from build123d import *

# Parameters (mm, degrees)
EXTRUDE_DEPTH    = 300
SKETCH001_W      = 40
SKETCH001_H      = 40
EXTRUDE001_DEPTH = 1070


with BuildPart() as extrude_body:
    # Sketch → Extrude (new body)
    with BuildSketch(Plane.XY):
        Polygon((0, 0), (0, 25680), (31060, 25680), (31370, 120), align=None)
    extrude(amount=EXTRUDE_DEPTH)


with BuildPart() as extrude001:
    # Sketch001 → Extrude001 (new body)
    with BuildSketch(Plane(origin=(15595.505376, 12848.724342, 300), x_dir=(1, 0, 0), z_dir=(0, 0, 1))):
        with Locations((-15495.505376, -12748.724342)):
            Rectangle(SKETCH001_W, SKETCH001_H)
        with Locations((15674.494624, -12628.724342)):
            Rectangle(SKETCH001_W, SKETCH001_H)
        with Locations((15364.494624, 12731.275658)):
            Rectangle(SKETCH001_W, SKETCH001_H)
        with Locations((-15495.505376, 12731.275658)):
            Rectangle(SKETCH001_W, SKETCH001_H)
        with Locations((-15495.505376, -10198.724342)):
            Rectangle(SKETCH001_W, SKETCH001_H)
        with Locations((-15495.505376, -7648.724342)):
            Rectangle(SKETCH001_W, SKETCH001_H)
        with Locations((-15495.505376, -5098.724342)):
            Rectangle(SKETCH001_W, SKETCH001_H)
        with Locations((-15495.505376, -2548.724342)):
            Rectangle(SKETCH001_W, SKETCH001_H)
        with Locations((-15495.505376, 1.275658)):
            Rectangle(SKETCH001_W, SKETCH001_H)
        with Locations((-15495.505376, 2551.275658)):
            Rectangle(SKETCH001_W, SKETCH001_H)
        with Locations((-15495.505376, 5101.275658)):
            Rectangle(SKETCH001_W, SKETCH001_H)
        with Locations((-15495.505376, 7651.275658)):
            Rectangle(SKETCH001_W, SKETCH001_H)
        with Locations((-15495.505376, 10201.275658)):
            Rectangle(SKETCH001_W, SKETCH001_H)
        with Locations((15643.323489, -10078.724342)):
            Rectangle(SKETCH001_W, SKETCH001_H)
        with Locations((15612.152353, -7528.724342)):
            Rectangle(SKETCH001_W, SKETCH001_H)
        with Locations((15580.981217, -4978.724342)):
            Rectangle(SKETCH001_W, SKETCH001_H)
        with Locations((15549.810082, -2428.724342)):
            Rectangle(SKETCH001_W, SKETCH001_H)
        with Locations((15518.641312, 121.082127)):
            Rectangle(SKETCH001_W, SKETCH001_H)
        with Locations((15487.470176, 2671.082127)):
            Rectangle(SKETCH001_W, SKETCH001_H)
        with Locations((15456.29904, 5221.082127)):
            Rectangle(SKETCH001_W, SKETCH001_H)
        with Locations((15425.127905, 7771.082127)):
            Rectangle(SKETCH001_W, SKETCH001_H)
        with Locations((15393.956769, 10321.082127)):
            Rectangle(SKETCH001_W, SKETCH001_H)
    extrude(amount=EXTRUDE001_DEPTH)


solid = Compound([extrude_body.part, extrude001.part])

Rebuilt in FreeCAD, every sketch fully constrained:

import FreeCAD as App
import Part
import Sketcher

V = App.Vector


def add_polygon(sketch, points):
    """Adds a closed chain of lines whose ends are joined by coincident constraints."""
    first, n = sketch.GeometryCount, len(points)
    for a, b in zip(points, points[1:] + points[:1]):
        sketch.addGeometry(Part.LineSegment(App.Vector(*a, 0), App.Vector(*b, 0)), False)
    for i in range(n):
        sketch.addConstraint(Sketcher.Constraint("Coincident", first + i, 2, first + (i + 1) % n, 1))

doc = App.newDocument("Part")
body = doc.addObject("PartDesign::Body", "Body")

sketch1 = body.newObject("Sketcher::SketchObject", "Sketch")
sketch1.AttachmentSupport = (doc.getObject("XY_Plane"), [""])
sketch1.MapMode = "FlatFace"
add_polygon(sketch1, [(0, 25680), (0, 0), (31370, 120), (31060, 25680)])
sketch1.addConstraint([
    Sketcher.Constraint("Vertical", 0),
    Sketcher.Constraint("Horizontal", 3),
    Sketcher.Constraint("Coincident", 0, 2, -1, 1),
    Sketcher.Constraint("DistanceX", 3, 2, 3, 1, 31060.0),
    Sketcher.Constraint("DistanceY", 0, 2, 0, 1, 25680.0),
    Sketcher.Constraint("DistanceX", -1, 1, 1, 2, 31370.0),
    Sketcher.Constraint("DistanceY", -1, 1, 1, 2, 120.0),
])
pad1 = body.newObject("PartDesign::Pad", "Pad")
pad1.Profile = sketch1
pad1.Length = 300
body2 = doc.addObject("PartDesign::Body", "Body001")
body2.AllowCompound = True

sketch2 = body2.newObject("Sketcher::SketchObject", "Sketch001")
sketch2.AttachmentSupport = (doc.getObject("XY_Plane001"), [""])
sketch2.MapMode = "FlatFace"
sketch2.AttachmentOffset = App.Placement(V(0, 0, 300), App.Rotation())
add_polygon(sketch2, [(80, 120), (80, 80), (120, 80), (120, 120)])
add_polygon(sketch2, [(31250, 240), (31250, 200), (31290, 200), (31290, 240)])
add_polygon(sketch2, [(30940, 25600), (30940, 25560), (30980, 25560), (30980, 25600)])
add_polygon(sketch2, [(80, 25600), (80, 25560), (120, 25560), (120, 25600)])
add_polygon(sketch2, [(80, 2670), (80, 2630), (120, 2630), (120, 2670)])
add_polygon(sketch2, [(80, 5220), (80, 5180), (120, 5180), (120, 5220)])
add_polygon(sketch2, [(80, 7770), (80, 7730), (120, 7730), (120, 7770)])
add_polygon(sketch2, [(80, 10320), (80, 10280), (120, 10280), (120, 10320)])
add_polygon(sketch2, [(80, 12870), (80, 12830), (120, 12830), (120, 12870)])
add_polygon(sketch2, [(80, 15420), (80, 15380), (120, 15380), (120, 15420)])
add_polygon(sketch2, [(80, 17970), (80, 17930), (120, 17930), (120, 17970)])
add_polygon(sketch2, [(80, 20520), (80, 20480), (120, 20480), (120, 20520)])
add_polygon(sketch2, [(80, 23070), (80, 23030), (120, 23030), (120, 23070)])
add_polygon(sketch2, [(31219, 2790), (31219, 2750), (31259, 2750), (31259, 2790)])
add_polygon(sketch2, [(31188, 5340), (31188, 5300), (31228, 5300), (31228, 5340)])
add_polygon(sketch2, [(31156, 7890), (31156, 7850), (31196, 7850), (31196, 7890)])
add_polygon(sketch2, [(31125, 10440), (31125, 10400), (31165, 10400), (31165, 10440)])
add_polygon(sketch2, [(31094, 12990), (31094, 12950), (31134, 12950), (31134, 12990)])
add_polygon(sketch2, [(31063, 15540), (31063, 15500), (31103, 15500), (31103, 15540)])
add_polygon(sketch2, [(31032, 18090), (31032, 18050), (31072, 18050), (31072, 18090)])
add_polygon(sketch2, [(31001, 20640), (31001, 20600), (31041, 20600), (31041, 20640)])
add_polygon(sketch2, [(30969, 23190), (30969, 23150), (31009, 23150), (31009, 23190)])
sketch2.addConstraint([
    Sketcher.Constraint("Vertical", 0),
    Sketcher.Constraint("Horizontal", 1),
    Sketcher.Constraint("Vertical", 2),
    Sketcher.Constraint("Horizontal", 3),
    Sketcher.Constraint("Vertical", 4),
    Sketcher.Constraint("Horizontal", 5),
    Sketcher.Constraint("Vertical", 6),
    Sketcher.Constraint("Horizontal", 7),
    Sketcher.Constraint("Vertical", 8),
    Sketcher.Constraint("Horizontal", 9),
    Sketcher.Constraint("Vertical", 10),
    Sketcher.Constraint("Horizontal", 11),
    Sketcher.Constraint("Vertical", 12),
    Sketcher.Constraint("Horizontal", 13),
    Sketcher.Constraint("Vertical", 14),
    Sketcher.Constraint("Horizontal", 15),
    Sketcher.Constraint("Vertical", 16),
    Sketcher.Constraint("Horizontal", 17),
    Sketcher.Constraint("Vertical", 18),
    Sketcher.Constraint("Horizontal", 19),
    Sketcher.Constraint("Vertical", 20),
    Sketcher.Constraint("Horizontal", 21),
    Sketcher.Constraint("Vertical", 22),
    Sketcher.Constraint("Horizontal", 23),
    Sketcher.Constraint("Vertical", 24),
    Sketcher.Constraint("Horizontal", 25),
    Sketcher.Constraint("Vertical", 26),
    Sketcher.Constraint("Horizontal", 27),
    Sketcher.Constraint("Vertical", 28),
    Sketcher.Constraint("Horizontal", 29),
    Sketcher.Constraint("Vertical", 30),
    Sketcher.Constraint("Horizontal", 31),
    Sketcher.Constraint("Vertical", 32),
    Sketcher.Constraint("Horizontal", 33),
    Sketcher.Constraint("Vertical", 34),
    Sketcher.Constraint("Horizontal", 35),
    Sketcher.Constraint("Vertical", 36),
    Sketcher.Constraint("Horizontal", 37),
    Sketcher.Constraint("Vertical", 38),
    Sketcher.Constraint("Horizontal", 39),
    Sketcher.Constraint("Vertical", 40),
    Sketcher.Constraint("Horizontal", 41),
    Sketcher.Constraint("Vertical", 42),
    Sketcher.Constraint("Horizontal", 43),
    Sketcher.Constraint("Vertical", 44),
    Sketcher.Constraint("Horizontal", 45),
    Sketcher.Constraint("Vertical", 46),
    Sketcher.Constraint("Horizontal", 47),
    Sketcher.Constraint("Vertical", 48),
    Sketcher.Constraint("Horizontal", 49),
    Sketcher.Constraint("Vertical", 50),
    Sketcher.Constraint("Horizontal", 51),
    Sketcher.Constraint("Vertical", 52),
    Sketcher.Constraint("Horizontal", 53),
    Sketcher.Constraint("Vertical", 54),
    Sketcher.Constraint("Horizontal", 55),
    Sketcher.Constraint("Vertical", 56),
    Sketcher.Constraint("Horizontal", 57),
    Sketcher.Constraint("Vertical", 58),
    Sketcher.Constraint("Horizontal", 59),
    Sketcher.Constraint("Vertical", 60),
    Sketcher.Constraint("Horizontal", 61),
    Sketcher.Constraint("Vertical", 62),
    Sketcher.Constraint("Horizontal", 63),
    Sketcher.Constraint("Vertical", 64),
    Sketcher.Constraint("Horizontal", 65),
    Sketcher.Constraint("Vertical", 66),
    Sketcher.Constraint("Horizontal", 67),
    Sketcher.Constraint("Vertical", 68),
    Sketcher.Constraint("Horizontal", 69),
    Sketcher.Constraint("Vertical", 70),
    Sketcher.Constraint("Horizontal", 71),
    Sketcher.Constraint("Vertical", 72),
    Sketcher.Constraint("Horizontal", 73),
    Sketcher.Constraint("Vertical", 74),
    Sketcher.Constraint("Horizontal", 75),
    Sketcher.Constraint("Vertical", 76),
    Sketcher.Constraint("Horizontal", 77),
    Sketcher.Constraint("Vertical", 78),
    Sketcher.Constraint("Horizontal", 79),
    Sketcher.Constraint("Vertical", 80),
    Sketcher.Constraint("Horizontal", 81),
    Sketcher.Constraint("Vertical", 82),
    Sketcher.Constraint("Horizontal", 83),
    Sketcher.Constraint("Vertical", 84),
    Sketcher.Constraint("Horizontal", 85),
    Sketcher.Constraint("Vertical", 86),
    Sketcher.Constraint("Horizontal", 87),
    Sketcher.Constraint("Horizontal", 9, 2, 12, 2),
    Sketcher.Constraint("Horizontal", 11, 2, 14, 2),
    Sketcher.Constraint("Vertical", 3, 2, 12, 2),
    Sketcher.Constraint("Vertical", 2, 2, 13, 2),
    Sketcher.Constraint("Vertical", 15, 2, 16, 2),
    Sketcher.Constraint("Vertical", 14, 2, 17, 2),
    Sketcher.Constraint("Vertical", 19, 2, 20, 2),
    Sketcher.Constraint("Vertical", 18, 2, 21, 2),
    Sketcher.Constraint("Vertical", 23, 2, 24, 2),
    Sketcher.Constraint("Vertical", 22, 2, 25, 2),
    Sketcher.Constraint("Vertical", 27, 2, 28, 2),
    Sketcher.Constraint("Vertical", 26, 2, 29, 2),
    Sketcher.Constraint("Vertical", 31, 2, 32, 2),
    Sketcher.Constraint("Vertical", 30, 2, 33, 2),
    Sketcher.Constraint("Vertical", 35, 2, 36, 2),
    Sketcher.Constraint("Vertical", 34, 2, 37, 2),
    Sketcher.Constraint("Vertical", 39, 2, 40, 2),
    Sketcher.Constraint("Vertical", 38, 2, 41, 2),
    Sketcher.Constraint("Vertical", 43, 2, 44, 2),
    Sketcher.Constraint("Vertical", 42, 2, 45, 2),
    Sketcher.Constraint("Vertical", 47, 2, 48, 2),
    Sketcher.Constraint("Vertical", 46, 2, 49, 2),
    Sketcher.Constraint("Equal", 3, 5),
    Sketcher.Constraint("Equal", 7, 9),
    Sketcher.Constraint("Equal", 51, 53),
    Sketcher.Constraint("Equal", 55, 57),
    Sketcher.Constraint("Equal", 59, 61),
    Sketcher.Constraint("Equal", 63, 65),
    Sketcher.Constraint("Equal", 67, 69),
    Sketcher.Constraint("Equal", 71, 73),
    Sketcher.Constraint("Equal", 75, 77),
    Sketcher.Constraint("Equal", 79, 81),
    Sketcher.Constraint("Equal", 83, 85),
    Sketcher.Constraint("Equal", 87, 0),
    Sketcher.Constraint("Equal", 2, 4),
    Sketcher.Constraint("Equal", 6, 8),
    Sketcher.Constraint("Equal", 14, 16),
    Sketcher.Constraint("Equal", 18, 20),
    Sketcher.Constraint("Equal", 22, 24),
    Sketcher.Constraint("Equal", 26, 28),
    Sketcher.Constraint("Equal", 30, 32),
    Sketcher.Constraint("Equal", 34, 36),
    Sketcher.Constraint("Equal", 38, 40),
    Sketcher.Constraint("Equal", 42, 44),
    Sketcher.Constraint("Equal", 46, 48),
    Sketcher.Constraint("Equal", 50, 52),
    Sketcher.Constraint("Equal", 54, 56),
    Sketcher.Constraint("Equal", 58, 60),
    Sketcher.Constraint("Equal", 62, 64),
    Sketcher.Constraint("Equal", 66, 68),
    Sketcher.Constraint("Equal", 70, 72),
    Sketcher.Constraint("Equal", 74, 76),
    Sketcher.Constraint("Equal", 78, 80),
    Sketcher.Constraint("Equal", 82, 84),
    Sketcher.Constraint("DistanceX", 1, 1, 1, 2, 40.0),
    Sketcher.Constraint("DistanceX", -1, 1, 0, 2, 80.0),
    Sketcher.Constraint("DistanceY", -1, 1, 0, 2, 80.0),
    Sketcher.Constraint("DistanceX", -1, 1, 4, 2, 31250.0),
    Sketcher.Constraint("DistanceY", -1, 1, 4, 2, 200.0),
    Sketcher.Constraint("DistanceX", -1, 1, 8, 2, 30940.0),
    Sketcher.Constraint("DistanceY", -1, 1, 8, 2, 25560.0),
    Sketcher.Constraint("DistanceY", -1, 1, 16, 2, 2630.0),
    Sketcher.Constraint("DistanceY", -1, 1, 20, 2, 5180.0),
    Sketcher.Constraint("DistanceY", -1, 1, 24, 2, 7730.0),
    Sketcher.Constraint("DistanceY", -1, 1, 28, 2, 10280.0),
    Sketcher.Constraint("DistanceY", -1, 1, 32, 2, 12830.0),
    Sketcher.Constraint("DistanceY", -1, 1, 36, 2, 15380.0),
    Sketcher.Constraint("DistanceY", -1, 1, 40, 2, 17930.0),
    Sketcher.Constraint("DistanceY", -1, 1, 44, 2, 20480.0),
    Sketcher.Constraint("DistanceY", -1, 1, 48, 2, 23030.0),
    Sketcher.Constraint("DistanceY", -1, 1, 52, 2, 2750.0),
    Sketcher.Constraint("DistanceY", -1, 1, 56, 2, 5300.0),
    Sketcher.Constraint("DistanceY", -1, 1, 60, 2, 7850.0),
    Sketcher.Constraint("DistanceY", -1, 1, 64, 2, 10400.0),
    Sketcher.Constraint("DistanceX", -1, 1, 56, 2, 31187.657729),
    Sketcher.Constraint("DistanceY", -1, 1, 68, 2, 12949.806469),
    Sketcher.Constraint("DistanceY", -1, 1, 72, 2, 15499.806469),
    Sketcher.Constraint("DistanceY", -1, 1, 76, 2, 18049.806469),
    Sketcher.Constraint("DistanceX", -1, 1, 80, 2, 31000.633281),
    Sketcher.Constraint("DistanceY", -1, 1, 80, 2, 20599.806469),
    Sketcher.Constraint("DistanceY", -1, 1, 84, 2, 23149.806469),
    Sketcher.Constraint("DistanceX", -1, 1, 52, 2, 31218.828865),
    Sketcher.Constraint("DistanceX", -1, 1, 60, 2, 31156.486593),
    Sketcher.Constraint("DistanceX", -1, 1, 64, 2, 31125.315458),
    Sketcher.Constraint("DistanceX", -1, 1, 68, 2, 31094.146688),
    Sketcher.Constraint("DistanceX", -1, 1, 72, 2, 31062.975552),
    Sketcher.Constraint("DistanceX", -1, 1, 76, 2, 31031.804416),
    Sketcher.Constraint("DistanceX", -1, 1, 84, 2, 30969.462145),
])
pad2 = body2.newObject("PartDesign::Pad", "Pad001")
pad2.Profile = sketch2
pad2.Length = 1070

doc.recompute()
